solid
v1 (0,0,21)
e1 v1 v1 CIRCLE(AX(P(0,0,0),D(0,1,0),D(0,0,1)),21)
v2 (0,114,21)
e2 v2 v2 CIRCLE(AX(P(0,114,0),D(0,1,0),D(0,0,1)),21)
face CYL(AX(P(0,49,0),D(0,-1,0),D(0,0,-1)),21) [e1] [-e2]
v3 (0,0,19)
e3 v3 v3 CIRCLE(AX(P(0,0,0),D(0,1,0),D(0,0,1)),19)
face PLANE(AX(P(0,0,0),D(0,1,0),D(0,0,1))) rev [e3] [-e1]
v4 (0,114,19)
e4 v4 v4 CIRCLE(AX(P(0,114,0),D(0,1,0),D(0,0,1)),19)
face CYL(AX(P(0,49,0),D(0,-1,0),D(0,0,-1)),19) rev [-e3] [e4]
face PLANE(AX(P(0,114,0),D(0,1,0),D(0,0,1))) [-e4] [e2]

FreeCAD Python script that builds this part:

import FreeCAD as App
import Part
import Sketcher

V = App.Vector

doc = App.newDocument("Part")
body = doc.addObject("PartDesign::Body", "Body")

# Sketch on XZ plane
sketch1 = doc.addObject("Sketcher::SketchObject", "Sketch")
body.addObject(sketch1)
sketch1.AttachmentSupport = (doc.XZ_Plane, [""])
sketch1.MapMode = "FlatFace"
sketch1.addGeometry(Part.Circle(V(0, 0, 0), V(0, 0, 1), 21), False)
sketch1.addGeometry(Part.Circle(V(0, 0, 0), V(0, 0, 1), 19), False)
sketch1.addConstraint(Sketcher.Constraint("Coincident", 0, 3, -1, 1))
sketch1.addConstraint(Sketcher.Constraint("Coincident", 1, 3, -1, 1))
sketch1.addConstraint(Sketcher.Constraint("Diameter", 0, 42.0))
sketch1.addConstraint(Sketcher.Constraint("Diameter", 1, 38.0))
pad1 = doc.addObject("PartDesign::Pad", "Pad")
body.addObject(pad1)
pad1.Profile = sketch1
pad1.Length = 49
pad1.Reversed = True

# Sketch on XZ plane
sketch2 = doc.addObject("Sketcher::SketchObject", "Sketch001")
body.addObject(sketch2)
sketch2.AttachmentSupport = (doc.XZ_Plane, [""])
sketch2.MapMode = "FlatFace"
sketch2.addGeometry(Part.Circle(V(0, 0, 0), V(0, 0, 1), 21), False)
sketch2.addGeometry(Part.Circle(V(0, 0, 0), V(0, 0, 1), 19), False)
sketch2.addConstraint(Sketcher.Constraint("Coincident", 0, 3, -1, 1))
sketch2.addConstraint(Sketcher.Constraint("Coincident", 1, 3, -1, 1))
sketch2.addConstraint(Sketcher.Constraint("Diameter", 0, 42.0))
sketch2.addConstraint(Sketcher.Constraint("Diameter", 1, 38.0))
pad2 = doc.addObject("PartDesign::Pad", "Pad001")
body.addObject(pad2)
pad2.Profile = sketch2
pad2.Length = 114
pad2.Reversed = True

doc.recompute()
